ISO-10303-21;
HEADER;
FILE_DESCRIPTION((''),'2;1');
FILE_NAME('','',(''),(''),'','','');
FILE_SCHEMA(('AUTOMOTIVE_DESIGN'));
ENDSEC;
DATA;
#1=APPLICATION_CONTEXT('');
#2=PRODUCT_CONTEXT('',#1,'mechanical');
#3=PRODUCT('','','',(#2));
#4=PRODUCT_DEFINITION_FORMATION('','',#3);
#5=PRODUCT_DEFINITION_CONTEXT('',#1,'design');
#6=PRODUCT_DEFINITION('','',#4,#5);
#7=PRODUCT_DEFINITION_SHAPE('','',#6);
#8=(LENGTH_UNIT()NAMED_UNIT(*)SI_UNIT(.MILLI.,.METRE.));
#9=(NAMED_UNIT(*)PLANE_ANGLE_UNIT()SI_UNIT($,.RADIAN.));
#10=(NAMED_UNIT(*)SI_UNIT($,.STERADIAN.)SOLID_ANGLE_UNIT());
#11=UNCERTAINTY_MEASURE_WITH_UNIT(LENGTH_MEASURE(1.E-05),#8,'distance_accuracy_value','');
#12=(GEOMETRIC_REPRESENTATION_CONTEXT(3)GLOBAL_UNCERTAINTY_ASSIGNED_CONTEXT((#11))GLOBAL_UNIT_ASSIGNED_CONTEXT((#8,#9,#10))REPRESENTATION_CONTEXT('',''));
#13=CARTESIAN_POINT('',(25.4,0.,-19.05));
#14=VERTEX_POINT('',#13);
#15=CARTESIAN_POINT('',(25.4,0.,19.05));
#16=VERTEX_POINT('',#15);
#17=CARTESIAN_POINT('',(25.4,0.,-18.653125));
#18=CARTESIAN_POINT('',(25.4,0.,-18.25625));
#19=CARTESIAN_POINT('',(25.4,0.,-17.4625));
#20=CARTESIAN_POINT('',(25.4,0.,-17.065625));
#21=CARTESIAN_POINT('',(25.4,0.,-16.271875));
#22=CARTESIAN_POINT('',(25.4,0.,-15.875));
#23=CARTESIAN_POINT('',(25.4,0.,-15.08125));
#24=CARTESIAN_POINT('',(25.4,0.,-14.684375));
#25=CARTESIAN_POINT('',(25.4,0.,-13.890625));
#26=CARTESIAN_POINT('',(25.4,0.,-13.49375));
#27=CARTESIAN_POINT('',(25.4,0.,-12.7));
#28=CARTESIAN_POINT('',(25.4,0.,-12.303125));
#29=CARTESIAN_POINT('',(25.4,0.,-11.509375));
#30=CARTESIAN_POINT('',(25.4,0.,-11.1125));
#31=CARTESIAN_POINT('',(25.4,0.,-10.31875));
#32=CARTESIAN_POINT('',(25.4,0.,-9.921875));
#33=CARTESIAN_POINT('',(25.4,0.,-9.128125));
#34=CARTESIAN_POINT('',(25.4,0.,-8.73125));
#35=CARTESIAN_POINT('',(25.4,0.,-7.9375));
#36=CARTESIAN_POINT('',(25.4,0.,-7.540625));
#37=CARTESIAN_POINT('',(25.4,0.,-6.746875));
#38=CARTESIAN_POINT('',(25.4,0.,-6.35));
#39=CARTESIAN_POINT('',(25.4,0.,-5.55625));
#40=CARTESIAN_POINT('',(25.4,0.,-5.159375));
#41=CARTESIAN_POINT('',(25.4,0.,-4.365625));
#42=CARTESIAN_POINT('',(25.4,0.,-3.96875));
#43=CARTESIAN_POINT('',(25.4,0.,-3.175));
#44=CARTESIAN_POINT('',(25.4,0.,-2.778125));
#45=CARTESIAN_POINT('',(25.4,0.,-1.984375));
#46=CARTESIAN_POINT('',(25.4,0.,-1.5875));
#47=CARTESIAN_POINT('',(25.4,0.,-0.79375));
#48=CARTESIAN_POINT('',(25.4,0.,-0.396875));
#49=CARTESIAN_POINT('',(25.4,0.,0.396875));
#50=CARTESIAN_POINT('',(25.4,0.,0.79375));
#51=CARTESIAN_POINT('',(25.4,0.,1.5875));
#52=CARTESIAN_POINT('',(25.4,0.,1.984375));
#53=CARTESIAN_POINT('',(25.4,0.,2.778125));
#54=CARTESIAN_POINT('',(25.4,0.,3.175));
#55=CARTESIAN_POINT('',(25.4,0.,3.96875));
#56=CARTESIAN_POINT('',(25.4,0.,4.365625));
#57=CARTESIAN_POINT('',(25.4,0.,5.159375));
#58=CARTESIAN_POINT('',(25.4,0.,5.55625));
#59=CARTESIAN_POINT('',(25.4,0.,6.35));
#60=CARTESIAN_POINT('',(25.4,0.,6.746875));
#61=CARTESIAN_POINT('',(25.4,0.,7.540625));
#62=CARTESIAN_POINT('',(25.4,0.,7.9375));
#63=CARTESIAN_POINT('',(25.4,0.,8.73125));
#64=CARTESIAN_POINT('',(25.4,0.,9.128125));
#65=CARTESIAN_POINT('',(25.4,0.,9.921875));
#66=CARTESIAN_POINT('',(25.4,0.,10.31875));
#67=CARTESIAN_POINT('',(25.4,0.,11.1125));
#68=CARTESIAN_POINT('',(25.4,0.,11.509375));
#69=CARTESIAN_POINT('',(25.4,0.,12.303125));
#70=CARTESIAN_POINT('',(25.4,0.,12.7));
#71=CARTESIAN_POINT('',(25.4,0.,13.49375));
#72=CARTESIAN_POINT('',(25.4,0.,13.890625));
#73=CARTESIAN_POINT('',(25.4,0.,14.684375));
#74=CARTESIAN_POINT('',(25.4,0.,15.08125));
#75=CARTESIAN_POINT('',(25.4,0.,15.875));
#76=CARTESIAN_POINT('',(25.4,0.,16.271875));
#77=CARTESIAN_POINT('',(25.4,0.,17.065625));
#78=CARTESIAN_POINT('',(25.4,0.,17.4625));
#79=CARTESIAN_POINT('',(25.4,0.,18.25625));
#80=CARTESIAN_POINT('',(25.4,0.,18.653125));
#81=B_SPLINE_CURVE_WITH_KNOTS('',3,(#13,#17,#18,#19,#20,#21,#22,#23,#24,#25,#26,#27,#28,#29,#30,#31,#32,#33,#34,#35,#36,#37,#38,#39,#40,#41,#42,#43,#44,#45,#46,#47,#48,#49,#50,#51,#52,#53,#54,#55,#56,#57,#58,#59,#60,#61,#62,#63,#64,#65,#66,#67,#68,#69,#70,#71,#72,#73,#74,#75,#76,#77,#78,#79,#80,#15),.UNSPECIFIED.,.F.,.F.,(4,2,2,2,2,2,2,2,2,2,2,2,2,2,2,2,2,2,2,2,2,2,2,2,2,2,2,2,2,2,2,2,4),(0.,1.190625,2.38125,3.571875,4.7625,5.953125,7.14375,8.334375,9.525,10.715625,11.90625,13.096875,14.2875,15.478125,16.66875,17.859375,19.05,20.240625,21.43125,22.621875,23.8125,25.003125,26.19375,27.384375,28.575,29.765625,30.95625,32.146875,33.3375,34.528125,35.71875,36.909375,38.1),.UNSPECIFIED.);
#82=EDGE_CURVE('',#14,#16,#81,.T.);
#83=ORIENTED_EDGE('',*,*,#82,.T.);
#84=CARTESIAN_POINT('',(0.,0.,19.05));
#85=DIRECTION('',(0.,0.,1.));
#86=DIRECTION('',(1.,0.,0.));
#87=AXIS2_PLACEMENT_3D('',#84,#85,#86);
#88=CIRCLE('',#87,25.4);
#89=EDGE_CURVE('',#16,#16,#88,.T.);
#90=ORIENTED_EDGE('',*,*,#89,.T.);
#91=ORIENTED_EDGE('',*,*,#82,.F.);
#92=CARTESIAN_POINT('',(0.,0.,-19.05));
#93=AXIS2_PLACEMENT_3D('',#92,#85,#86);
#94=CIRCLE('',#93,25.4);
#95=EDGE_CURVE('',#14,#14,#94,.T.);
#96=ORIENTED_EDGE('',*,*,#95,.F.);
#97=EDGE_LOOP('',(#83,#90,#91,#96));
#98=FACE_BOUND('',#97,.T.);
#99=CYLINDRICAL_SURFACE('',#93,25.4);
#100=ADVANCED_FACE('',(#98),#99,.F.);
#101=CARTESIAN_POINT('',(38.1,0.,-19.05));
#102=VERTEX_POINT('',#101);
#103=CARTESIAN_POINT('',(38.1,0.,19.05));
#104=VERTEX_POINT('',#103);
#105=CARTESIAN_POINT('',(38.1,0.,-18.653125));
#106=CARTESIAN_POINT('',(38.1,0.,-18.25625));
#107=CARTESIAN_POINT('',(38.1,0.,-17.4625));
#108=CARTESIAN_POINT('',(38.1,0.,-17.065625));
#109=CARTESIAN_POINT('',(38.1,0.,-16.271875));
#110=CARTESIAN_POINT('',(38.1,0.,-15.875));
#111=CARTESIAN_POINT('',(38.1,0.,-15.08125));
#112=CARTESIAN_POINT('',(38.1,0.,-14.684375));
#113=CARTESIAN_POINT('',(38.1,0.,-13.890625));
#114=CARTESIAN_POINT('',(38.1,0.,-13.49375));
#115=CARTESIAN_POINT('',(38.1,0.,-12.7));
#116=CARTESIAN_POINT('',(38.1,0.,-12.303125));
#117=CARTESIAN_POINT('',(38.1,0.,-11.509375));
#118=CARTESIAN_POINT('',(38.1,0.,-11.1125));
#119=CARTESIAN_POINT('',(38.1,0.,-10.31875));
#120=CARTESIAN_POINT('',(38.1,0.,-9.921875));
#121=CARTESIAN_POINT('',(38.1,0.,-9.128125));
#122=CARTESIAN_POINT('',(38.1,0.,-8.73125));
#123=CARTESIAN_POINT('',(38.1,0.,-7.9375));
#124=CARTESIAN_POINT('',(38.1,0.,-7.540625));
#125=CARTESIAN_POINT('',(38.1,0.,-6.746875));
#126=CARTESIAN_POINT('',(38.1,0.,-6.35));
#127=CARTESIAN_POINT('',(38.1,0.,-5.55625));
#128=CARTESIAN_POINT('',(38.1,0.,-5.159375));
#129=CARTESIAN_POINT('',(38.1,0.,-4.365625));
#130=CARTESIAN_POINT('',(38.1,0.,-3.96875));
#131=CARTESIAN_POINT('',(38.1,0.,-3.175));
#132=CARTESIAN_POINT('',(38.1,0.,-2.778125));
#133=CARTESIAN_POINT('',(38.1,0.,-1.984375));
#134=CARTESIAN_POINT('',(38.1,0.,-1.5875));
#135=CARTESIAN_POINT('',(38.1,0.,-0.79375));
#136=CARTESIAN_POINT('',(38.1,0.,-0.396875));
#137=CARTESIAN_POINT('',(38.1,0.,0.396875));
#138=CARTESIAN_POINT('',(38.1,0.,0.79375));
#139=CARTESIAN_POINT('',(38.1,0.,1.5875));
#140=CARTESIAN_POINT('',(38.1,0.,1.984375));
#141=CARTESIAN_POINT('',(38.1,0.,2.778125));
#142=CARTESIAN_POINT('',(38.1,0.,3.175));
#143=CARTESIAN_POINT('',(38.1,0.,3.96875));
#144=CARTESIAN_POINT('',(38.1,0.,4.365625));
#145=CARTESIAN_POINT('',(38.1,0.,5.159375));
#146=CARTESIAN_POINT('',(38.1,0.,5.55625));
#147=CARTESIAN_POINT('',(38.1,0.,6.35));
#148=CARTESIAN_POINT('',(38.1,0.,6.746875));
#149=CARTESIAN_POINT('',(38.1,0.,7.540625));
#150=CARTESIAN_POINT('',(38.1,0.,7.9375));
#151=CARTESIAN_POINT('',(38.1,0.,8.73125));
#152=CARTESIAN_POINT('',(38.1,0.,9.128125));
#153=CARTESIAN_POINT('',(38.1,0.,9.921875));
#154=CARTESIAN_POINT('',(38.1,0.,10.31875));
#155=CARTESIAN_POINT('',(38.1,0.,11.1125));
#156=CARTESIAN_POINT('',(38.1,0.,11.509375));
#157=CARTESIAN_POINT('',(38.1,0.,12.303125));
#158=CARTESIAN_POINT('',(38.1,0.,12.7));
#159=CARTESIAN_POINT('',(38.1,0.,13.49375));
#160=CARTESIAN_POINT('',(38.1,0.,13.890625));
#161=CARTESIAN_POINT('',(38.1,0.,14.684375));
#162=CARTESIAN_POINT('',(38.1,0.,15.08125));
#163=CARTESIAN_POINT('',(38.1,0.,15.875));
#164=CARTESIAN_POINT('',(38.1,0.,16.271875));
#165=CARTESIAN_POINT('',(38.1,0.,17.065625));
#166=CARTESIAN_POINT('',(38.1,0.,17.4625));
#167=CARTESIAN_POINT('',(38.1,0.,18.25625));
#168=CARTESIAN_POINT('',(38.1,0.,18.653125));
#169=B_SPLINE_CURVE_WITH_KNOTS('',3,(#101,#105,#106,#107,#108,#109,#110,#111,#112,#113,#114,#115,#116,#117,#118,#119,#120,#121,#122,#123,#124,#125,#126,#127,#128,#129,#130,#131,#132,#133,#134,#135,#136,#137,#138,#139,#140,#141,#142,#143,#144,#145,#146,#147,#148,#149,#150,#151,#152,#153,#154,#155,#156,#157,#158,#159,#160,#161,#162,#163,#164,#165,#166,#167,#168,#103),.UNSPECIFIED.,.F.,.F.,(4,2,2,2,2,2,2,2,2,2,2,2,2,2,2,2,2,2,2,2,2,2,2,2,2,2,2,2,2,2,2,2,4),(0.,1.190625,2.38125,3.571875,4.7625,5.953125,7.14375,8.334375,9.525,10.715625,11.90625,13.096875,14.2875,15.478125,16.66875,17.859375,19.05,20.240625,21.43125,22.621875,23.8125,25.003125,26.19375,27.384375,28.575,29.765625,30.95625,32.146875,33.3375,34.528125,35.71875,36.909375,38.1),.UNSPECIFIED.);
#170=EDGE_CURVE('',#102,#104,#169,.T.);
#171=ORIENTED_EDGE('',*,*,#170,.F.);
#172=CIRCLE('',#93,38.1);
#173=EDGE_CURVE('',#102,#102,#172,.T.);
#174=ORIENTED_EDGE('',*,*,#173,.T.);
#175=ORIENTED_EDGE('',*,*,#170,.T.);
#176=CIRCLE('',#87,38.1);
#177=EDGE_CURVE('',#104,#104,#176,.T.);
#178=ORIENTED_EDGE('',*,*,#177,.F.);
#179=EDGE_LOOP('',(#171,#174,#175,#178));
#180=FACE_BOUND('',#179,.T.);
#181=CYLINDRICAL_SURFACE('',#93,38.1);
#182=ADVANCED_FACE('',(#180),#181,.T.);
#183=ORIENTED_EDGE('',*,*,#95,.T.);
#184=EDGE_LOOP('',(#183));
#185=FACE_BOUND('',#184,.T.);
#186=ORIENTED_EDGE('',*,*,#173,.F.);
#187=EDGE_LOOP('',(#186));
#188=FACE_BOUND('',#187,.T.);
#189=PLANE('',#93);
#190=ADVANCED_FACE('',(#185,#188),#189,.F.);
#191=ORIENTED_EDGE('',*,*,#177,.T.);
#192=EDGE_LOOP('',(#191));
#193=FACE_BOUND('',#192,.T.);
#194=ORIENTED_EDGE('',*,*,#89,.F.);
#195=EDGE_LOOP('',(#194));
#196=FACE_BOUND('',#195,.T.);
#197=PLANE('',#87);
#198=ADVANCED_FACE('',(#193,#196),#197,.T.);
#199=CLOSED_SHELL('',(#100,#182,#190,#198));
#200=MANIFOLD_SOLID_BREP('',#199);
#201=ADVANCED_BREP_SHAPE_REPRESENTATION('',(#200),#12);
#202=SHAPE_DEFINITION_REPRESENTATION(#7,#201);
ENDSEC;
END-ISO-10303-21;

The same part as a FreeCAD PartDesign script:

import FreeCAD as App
import Part
import Sketcher
Q = App.Units.Quantity

doc = App.newDocument("Part")
body = doc.addObject("PartDesign::Body", "Body")

sketch1 = body.newObject("Sketcher::SketchObject", "Sketch")
sketch1.AttachmentSupport = (doc.getObject("XY_Plane"), [""])
sketch1.MapMode = "FlatFace"
sketch1.AttachmentOffset = App.Placement(App.Vector(0, 0, 0.75 * 25.4), App.Rotation())
sketch1.addGeometry([
    Part.Circle(App.Vector(0, 0, 0), App.Vector(0, 0, 1), 38),
    Part.Circle(App.Vector(0, 0, 0), App.Vector(0, 0, 1), 25),
], False)
sketch1.addConstraint([
    Sketcher.Constraint("Coincident", 0, 3, -1, 1),
    Sketcher.Constraint("Coincident", 1, 3, -1, 1),
    Sketcher.Constraint("Diameter", 0, Q("3 in")),
    Sketcher.Constraint("Diameter", 1, Q("2 in")),
])
pad1 = body.newObject("PartDesign::Pad", "Pad")
pad1.Profile = sketch1
pad1.Length = Q("1.5 in")
pad1.Reversed = True

doc.recompute()
